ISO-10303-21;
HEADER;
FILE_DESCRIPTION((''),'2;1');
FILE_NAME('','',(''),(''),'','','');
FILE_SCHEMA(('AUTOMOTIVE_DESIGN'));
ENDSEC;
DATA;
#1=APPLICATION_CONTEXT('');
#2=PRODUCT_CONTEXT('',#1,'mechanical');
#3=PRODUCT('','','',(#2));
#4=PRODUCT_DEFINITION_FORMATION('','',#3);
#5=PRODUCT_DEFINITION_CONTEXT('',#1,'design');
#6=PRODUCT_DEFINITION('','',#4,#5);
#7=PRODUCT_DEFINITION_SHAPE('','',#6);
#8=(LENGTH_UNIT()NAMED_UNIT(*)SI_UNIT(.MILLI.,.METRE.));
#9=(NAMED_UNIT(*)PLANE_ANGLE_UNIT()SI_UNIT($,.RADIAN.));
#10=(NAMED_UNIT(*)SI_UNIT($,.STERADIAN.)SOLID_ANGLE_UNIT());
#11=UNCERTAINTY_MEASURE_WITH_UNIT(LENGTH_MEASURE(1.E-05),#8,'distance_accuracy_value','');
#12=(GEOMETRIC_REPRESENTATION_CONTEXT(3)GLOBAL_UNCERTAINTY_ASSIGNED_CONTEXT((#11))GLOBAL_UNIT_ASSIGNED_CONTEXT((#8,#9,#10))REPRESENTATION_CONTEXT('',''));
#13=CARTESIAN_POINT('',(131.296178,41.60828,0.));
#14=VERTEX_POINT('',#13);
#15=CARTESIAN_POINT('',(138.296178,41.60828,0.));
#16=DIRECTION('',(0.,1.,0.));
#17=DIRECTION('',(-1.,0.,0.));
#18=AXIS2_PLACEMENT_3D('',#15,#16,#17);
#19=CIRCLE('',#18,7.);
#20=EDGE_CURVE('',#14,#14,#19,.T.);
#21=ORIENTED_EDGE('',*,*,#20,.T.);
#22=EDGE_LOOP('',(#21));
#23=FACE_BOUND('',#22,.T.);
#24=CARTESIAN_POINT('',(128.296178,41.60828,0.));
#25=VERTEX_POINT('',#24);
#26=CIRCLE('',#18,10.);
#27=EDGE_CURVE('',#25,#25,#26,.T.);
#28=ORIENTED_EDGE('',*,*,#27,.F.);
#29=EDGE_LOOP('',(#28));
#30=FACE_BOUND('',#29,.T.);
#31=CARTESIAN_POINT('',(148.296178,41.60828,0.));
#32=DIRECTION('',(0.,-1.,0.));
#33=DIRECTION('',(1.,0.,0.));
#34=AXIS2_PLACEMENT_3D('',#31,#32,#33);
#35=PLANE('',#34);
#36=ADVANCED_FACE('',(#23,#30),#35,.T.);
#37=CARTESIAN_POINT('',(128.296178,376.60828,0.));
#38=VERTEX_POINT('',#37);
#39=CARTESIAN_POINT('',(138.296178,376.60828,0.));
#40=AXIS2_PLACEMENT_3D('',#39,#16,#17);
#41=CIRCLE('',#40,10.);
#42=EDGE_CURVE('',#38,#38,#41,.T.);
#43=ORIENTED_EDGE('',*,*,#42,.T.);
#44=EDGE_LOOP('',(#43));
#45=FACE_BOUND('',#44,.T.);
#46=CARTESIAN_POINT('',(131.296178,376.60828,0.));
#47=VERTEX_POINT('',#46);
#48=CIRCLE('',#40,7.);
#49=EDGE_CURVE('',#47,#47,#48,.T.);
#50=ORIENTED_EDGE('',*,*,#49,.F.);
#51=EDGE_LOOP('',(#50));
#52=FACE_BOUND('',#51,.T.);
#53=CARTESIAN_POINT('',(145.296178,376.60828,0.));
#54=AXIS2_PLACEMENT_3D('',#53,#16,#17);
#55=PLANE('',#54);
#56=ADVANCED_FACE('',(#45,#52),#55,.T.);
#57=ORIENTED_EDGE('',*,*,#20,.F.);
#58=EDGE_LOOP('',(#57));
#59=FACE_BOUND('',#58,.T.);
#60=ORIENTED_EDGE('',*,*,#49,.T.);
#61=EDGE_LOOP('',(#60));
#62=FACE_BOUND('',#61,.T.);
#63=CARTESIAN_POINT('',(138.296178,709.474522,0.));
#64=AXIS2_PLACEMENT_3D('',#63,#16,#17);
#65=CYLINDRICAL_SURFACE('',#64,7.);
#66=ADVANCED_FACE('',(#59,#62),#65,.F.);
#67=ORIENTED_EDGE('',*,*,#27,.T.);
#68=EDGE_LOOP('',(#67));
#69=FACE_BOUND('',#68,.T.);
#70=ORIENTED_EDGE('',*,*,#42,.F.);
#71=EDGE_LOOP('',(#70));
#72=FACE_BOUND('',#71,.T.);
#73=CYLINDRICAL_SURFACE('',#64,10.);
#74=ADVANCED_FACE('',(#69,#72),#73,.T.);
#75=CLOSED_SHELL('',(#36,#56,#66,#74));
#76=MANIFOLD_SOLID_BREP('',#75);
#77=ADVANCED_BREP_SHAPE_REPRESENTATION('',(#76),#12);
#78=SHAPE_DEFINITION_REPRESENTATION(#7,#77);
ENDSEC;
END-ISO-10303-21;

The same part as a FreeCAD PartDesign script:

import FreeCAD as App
import Part
import Sketcher
Q = App.Units.Quantity

doc = App.newDocument("Part")
body = doc.addObject("PartDesign::Body", "Body")

# Sketch on XY plane
sketch1 = body.newObject("Sketcher::SketchObject", "Sketch")
sketch1.AttachmentSupport = (doc.getObject("XY_Plane"), [""])
sketch1.MapMode = "FlatFace"
sketch1.addGeometry(Part.LineSegment(App.Vector(145.296178, 376.60828, 0), App.Vector(145.296178, 41.60828, 0)), False)
sketch1.addGeometry(Part.LineSegment(App.Vector(145.296178, 41.60828, 0), App.Vector(148.296178, 41.60828, 0)), False)
sketch1.addGeometry(Part.LineSegment(App.Vector(148.296178, 41.60828, 0), App.Vector(148.296178, 376.60828, 0)), False)
sketch1.addGeometry(Part.LineSegment(App.Vector(148.296178, 376.60828, 0), App.Vector(145.296178, 376.60828, 0)), False)
sketch1.addGeometry(Part.LineSegment(App.Vector(138.296178, 376.60828, 0), App.Vector(138.296178, 41.60828, 0)), True)  # axis
sketch1.addConstraint(Sketcher.Constraint("Coincident", 0, 2, 1, 1))
sketch1.addConstraint(Sketcher.Constraint("Coincident", 1, 2, 2, 1))
sketch1.addConstraint(Sketcher.Constraint("Coincident", 2, 2, 3, 1))
sketch1.addConstraint(Sketcher.Constraint("Coincident", 3, 2, 0, 1))
sketch1.addConstraint(Sketcher.Constraint("Vertical", 0))
sketch1.addConstraint(Sketcher.Constraint("Horizontal", 1))
sketch1.addConstraint(Sketcher.Constraint("Vertical", 2))
sketch1.addConstraint(Sketcher.Constraint("Horizontal", 3))
sketch1.addConstraint(Sketcher.Constraint("Vertical", 4))
sketch1.addConstraint(Sketcher.Constraint("Horizontal", 3, 2, 4, 1))
sketch1.addConstraint(Sketcher.Constraint("Horizontal", 1, 2, 4, 2))
sketch1.addConstraint(Sketcher.Constraint("DistanceX", 1, 1, 1, 2, Q("3 mm")))
sketch1.addConstraint(Sketcher.Constraint("DistanceY", 0, 2, 0, 1, Q("335 mm")))
sketch1.addConstraint(Sketcher.Constraint("DistanceX", 4, 1, 3, 2, Q("7 mm")))
sketch1.addConstraint(Sketcher.Constraint("DistanceX", -1, 1, 0, 2, Q("145.296178 mm")))
sketch1.addConstraint(Sketcher.Constraint("DistanceY", -1, 1, 0, 2, Q("41.60828 mm")))
revolution = body.newObject("PartDesign::Revolution", "Revolution")
revolution.Profile = sketch1
revolution.ReferenceAxis = (sketch1, ["Axis0"])
revolution.Angle = 360

doc.recompute()
